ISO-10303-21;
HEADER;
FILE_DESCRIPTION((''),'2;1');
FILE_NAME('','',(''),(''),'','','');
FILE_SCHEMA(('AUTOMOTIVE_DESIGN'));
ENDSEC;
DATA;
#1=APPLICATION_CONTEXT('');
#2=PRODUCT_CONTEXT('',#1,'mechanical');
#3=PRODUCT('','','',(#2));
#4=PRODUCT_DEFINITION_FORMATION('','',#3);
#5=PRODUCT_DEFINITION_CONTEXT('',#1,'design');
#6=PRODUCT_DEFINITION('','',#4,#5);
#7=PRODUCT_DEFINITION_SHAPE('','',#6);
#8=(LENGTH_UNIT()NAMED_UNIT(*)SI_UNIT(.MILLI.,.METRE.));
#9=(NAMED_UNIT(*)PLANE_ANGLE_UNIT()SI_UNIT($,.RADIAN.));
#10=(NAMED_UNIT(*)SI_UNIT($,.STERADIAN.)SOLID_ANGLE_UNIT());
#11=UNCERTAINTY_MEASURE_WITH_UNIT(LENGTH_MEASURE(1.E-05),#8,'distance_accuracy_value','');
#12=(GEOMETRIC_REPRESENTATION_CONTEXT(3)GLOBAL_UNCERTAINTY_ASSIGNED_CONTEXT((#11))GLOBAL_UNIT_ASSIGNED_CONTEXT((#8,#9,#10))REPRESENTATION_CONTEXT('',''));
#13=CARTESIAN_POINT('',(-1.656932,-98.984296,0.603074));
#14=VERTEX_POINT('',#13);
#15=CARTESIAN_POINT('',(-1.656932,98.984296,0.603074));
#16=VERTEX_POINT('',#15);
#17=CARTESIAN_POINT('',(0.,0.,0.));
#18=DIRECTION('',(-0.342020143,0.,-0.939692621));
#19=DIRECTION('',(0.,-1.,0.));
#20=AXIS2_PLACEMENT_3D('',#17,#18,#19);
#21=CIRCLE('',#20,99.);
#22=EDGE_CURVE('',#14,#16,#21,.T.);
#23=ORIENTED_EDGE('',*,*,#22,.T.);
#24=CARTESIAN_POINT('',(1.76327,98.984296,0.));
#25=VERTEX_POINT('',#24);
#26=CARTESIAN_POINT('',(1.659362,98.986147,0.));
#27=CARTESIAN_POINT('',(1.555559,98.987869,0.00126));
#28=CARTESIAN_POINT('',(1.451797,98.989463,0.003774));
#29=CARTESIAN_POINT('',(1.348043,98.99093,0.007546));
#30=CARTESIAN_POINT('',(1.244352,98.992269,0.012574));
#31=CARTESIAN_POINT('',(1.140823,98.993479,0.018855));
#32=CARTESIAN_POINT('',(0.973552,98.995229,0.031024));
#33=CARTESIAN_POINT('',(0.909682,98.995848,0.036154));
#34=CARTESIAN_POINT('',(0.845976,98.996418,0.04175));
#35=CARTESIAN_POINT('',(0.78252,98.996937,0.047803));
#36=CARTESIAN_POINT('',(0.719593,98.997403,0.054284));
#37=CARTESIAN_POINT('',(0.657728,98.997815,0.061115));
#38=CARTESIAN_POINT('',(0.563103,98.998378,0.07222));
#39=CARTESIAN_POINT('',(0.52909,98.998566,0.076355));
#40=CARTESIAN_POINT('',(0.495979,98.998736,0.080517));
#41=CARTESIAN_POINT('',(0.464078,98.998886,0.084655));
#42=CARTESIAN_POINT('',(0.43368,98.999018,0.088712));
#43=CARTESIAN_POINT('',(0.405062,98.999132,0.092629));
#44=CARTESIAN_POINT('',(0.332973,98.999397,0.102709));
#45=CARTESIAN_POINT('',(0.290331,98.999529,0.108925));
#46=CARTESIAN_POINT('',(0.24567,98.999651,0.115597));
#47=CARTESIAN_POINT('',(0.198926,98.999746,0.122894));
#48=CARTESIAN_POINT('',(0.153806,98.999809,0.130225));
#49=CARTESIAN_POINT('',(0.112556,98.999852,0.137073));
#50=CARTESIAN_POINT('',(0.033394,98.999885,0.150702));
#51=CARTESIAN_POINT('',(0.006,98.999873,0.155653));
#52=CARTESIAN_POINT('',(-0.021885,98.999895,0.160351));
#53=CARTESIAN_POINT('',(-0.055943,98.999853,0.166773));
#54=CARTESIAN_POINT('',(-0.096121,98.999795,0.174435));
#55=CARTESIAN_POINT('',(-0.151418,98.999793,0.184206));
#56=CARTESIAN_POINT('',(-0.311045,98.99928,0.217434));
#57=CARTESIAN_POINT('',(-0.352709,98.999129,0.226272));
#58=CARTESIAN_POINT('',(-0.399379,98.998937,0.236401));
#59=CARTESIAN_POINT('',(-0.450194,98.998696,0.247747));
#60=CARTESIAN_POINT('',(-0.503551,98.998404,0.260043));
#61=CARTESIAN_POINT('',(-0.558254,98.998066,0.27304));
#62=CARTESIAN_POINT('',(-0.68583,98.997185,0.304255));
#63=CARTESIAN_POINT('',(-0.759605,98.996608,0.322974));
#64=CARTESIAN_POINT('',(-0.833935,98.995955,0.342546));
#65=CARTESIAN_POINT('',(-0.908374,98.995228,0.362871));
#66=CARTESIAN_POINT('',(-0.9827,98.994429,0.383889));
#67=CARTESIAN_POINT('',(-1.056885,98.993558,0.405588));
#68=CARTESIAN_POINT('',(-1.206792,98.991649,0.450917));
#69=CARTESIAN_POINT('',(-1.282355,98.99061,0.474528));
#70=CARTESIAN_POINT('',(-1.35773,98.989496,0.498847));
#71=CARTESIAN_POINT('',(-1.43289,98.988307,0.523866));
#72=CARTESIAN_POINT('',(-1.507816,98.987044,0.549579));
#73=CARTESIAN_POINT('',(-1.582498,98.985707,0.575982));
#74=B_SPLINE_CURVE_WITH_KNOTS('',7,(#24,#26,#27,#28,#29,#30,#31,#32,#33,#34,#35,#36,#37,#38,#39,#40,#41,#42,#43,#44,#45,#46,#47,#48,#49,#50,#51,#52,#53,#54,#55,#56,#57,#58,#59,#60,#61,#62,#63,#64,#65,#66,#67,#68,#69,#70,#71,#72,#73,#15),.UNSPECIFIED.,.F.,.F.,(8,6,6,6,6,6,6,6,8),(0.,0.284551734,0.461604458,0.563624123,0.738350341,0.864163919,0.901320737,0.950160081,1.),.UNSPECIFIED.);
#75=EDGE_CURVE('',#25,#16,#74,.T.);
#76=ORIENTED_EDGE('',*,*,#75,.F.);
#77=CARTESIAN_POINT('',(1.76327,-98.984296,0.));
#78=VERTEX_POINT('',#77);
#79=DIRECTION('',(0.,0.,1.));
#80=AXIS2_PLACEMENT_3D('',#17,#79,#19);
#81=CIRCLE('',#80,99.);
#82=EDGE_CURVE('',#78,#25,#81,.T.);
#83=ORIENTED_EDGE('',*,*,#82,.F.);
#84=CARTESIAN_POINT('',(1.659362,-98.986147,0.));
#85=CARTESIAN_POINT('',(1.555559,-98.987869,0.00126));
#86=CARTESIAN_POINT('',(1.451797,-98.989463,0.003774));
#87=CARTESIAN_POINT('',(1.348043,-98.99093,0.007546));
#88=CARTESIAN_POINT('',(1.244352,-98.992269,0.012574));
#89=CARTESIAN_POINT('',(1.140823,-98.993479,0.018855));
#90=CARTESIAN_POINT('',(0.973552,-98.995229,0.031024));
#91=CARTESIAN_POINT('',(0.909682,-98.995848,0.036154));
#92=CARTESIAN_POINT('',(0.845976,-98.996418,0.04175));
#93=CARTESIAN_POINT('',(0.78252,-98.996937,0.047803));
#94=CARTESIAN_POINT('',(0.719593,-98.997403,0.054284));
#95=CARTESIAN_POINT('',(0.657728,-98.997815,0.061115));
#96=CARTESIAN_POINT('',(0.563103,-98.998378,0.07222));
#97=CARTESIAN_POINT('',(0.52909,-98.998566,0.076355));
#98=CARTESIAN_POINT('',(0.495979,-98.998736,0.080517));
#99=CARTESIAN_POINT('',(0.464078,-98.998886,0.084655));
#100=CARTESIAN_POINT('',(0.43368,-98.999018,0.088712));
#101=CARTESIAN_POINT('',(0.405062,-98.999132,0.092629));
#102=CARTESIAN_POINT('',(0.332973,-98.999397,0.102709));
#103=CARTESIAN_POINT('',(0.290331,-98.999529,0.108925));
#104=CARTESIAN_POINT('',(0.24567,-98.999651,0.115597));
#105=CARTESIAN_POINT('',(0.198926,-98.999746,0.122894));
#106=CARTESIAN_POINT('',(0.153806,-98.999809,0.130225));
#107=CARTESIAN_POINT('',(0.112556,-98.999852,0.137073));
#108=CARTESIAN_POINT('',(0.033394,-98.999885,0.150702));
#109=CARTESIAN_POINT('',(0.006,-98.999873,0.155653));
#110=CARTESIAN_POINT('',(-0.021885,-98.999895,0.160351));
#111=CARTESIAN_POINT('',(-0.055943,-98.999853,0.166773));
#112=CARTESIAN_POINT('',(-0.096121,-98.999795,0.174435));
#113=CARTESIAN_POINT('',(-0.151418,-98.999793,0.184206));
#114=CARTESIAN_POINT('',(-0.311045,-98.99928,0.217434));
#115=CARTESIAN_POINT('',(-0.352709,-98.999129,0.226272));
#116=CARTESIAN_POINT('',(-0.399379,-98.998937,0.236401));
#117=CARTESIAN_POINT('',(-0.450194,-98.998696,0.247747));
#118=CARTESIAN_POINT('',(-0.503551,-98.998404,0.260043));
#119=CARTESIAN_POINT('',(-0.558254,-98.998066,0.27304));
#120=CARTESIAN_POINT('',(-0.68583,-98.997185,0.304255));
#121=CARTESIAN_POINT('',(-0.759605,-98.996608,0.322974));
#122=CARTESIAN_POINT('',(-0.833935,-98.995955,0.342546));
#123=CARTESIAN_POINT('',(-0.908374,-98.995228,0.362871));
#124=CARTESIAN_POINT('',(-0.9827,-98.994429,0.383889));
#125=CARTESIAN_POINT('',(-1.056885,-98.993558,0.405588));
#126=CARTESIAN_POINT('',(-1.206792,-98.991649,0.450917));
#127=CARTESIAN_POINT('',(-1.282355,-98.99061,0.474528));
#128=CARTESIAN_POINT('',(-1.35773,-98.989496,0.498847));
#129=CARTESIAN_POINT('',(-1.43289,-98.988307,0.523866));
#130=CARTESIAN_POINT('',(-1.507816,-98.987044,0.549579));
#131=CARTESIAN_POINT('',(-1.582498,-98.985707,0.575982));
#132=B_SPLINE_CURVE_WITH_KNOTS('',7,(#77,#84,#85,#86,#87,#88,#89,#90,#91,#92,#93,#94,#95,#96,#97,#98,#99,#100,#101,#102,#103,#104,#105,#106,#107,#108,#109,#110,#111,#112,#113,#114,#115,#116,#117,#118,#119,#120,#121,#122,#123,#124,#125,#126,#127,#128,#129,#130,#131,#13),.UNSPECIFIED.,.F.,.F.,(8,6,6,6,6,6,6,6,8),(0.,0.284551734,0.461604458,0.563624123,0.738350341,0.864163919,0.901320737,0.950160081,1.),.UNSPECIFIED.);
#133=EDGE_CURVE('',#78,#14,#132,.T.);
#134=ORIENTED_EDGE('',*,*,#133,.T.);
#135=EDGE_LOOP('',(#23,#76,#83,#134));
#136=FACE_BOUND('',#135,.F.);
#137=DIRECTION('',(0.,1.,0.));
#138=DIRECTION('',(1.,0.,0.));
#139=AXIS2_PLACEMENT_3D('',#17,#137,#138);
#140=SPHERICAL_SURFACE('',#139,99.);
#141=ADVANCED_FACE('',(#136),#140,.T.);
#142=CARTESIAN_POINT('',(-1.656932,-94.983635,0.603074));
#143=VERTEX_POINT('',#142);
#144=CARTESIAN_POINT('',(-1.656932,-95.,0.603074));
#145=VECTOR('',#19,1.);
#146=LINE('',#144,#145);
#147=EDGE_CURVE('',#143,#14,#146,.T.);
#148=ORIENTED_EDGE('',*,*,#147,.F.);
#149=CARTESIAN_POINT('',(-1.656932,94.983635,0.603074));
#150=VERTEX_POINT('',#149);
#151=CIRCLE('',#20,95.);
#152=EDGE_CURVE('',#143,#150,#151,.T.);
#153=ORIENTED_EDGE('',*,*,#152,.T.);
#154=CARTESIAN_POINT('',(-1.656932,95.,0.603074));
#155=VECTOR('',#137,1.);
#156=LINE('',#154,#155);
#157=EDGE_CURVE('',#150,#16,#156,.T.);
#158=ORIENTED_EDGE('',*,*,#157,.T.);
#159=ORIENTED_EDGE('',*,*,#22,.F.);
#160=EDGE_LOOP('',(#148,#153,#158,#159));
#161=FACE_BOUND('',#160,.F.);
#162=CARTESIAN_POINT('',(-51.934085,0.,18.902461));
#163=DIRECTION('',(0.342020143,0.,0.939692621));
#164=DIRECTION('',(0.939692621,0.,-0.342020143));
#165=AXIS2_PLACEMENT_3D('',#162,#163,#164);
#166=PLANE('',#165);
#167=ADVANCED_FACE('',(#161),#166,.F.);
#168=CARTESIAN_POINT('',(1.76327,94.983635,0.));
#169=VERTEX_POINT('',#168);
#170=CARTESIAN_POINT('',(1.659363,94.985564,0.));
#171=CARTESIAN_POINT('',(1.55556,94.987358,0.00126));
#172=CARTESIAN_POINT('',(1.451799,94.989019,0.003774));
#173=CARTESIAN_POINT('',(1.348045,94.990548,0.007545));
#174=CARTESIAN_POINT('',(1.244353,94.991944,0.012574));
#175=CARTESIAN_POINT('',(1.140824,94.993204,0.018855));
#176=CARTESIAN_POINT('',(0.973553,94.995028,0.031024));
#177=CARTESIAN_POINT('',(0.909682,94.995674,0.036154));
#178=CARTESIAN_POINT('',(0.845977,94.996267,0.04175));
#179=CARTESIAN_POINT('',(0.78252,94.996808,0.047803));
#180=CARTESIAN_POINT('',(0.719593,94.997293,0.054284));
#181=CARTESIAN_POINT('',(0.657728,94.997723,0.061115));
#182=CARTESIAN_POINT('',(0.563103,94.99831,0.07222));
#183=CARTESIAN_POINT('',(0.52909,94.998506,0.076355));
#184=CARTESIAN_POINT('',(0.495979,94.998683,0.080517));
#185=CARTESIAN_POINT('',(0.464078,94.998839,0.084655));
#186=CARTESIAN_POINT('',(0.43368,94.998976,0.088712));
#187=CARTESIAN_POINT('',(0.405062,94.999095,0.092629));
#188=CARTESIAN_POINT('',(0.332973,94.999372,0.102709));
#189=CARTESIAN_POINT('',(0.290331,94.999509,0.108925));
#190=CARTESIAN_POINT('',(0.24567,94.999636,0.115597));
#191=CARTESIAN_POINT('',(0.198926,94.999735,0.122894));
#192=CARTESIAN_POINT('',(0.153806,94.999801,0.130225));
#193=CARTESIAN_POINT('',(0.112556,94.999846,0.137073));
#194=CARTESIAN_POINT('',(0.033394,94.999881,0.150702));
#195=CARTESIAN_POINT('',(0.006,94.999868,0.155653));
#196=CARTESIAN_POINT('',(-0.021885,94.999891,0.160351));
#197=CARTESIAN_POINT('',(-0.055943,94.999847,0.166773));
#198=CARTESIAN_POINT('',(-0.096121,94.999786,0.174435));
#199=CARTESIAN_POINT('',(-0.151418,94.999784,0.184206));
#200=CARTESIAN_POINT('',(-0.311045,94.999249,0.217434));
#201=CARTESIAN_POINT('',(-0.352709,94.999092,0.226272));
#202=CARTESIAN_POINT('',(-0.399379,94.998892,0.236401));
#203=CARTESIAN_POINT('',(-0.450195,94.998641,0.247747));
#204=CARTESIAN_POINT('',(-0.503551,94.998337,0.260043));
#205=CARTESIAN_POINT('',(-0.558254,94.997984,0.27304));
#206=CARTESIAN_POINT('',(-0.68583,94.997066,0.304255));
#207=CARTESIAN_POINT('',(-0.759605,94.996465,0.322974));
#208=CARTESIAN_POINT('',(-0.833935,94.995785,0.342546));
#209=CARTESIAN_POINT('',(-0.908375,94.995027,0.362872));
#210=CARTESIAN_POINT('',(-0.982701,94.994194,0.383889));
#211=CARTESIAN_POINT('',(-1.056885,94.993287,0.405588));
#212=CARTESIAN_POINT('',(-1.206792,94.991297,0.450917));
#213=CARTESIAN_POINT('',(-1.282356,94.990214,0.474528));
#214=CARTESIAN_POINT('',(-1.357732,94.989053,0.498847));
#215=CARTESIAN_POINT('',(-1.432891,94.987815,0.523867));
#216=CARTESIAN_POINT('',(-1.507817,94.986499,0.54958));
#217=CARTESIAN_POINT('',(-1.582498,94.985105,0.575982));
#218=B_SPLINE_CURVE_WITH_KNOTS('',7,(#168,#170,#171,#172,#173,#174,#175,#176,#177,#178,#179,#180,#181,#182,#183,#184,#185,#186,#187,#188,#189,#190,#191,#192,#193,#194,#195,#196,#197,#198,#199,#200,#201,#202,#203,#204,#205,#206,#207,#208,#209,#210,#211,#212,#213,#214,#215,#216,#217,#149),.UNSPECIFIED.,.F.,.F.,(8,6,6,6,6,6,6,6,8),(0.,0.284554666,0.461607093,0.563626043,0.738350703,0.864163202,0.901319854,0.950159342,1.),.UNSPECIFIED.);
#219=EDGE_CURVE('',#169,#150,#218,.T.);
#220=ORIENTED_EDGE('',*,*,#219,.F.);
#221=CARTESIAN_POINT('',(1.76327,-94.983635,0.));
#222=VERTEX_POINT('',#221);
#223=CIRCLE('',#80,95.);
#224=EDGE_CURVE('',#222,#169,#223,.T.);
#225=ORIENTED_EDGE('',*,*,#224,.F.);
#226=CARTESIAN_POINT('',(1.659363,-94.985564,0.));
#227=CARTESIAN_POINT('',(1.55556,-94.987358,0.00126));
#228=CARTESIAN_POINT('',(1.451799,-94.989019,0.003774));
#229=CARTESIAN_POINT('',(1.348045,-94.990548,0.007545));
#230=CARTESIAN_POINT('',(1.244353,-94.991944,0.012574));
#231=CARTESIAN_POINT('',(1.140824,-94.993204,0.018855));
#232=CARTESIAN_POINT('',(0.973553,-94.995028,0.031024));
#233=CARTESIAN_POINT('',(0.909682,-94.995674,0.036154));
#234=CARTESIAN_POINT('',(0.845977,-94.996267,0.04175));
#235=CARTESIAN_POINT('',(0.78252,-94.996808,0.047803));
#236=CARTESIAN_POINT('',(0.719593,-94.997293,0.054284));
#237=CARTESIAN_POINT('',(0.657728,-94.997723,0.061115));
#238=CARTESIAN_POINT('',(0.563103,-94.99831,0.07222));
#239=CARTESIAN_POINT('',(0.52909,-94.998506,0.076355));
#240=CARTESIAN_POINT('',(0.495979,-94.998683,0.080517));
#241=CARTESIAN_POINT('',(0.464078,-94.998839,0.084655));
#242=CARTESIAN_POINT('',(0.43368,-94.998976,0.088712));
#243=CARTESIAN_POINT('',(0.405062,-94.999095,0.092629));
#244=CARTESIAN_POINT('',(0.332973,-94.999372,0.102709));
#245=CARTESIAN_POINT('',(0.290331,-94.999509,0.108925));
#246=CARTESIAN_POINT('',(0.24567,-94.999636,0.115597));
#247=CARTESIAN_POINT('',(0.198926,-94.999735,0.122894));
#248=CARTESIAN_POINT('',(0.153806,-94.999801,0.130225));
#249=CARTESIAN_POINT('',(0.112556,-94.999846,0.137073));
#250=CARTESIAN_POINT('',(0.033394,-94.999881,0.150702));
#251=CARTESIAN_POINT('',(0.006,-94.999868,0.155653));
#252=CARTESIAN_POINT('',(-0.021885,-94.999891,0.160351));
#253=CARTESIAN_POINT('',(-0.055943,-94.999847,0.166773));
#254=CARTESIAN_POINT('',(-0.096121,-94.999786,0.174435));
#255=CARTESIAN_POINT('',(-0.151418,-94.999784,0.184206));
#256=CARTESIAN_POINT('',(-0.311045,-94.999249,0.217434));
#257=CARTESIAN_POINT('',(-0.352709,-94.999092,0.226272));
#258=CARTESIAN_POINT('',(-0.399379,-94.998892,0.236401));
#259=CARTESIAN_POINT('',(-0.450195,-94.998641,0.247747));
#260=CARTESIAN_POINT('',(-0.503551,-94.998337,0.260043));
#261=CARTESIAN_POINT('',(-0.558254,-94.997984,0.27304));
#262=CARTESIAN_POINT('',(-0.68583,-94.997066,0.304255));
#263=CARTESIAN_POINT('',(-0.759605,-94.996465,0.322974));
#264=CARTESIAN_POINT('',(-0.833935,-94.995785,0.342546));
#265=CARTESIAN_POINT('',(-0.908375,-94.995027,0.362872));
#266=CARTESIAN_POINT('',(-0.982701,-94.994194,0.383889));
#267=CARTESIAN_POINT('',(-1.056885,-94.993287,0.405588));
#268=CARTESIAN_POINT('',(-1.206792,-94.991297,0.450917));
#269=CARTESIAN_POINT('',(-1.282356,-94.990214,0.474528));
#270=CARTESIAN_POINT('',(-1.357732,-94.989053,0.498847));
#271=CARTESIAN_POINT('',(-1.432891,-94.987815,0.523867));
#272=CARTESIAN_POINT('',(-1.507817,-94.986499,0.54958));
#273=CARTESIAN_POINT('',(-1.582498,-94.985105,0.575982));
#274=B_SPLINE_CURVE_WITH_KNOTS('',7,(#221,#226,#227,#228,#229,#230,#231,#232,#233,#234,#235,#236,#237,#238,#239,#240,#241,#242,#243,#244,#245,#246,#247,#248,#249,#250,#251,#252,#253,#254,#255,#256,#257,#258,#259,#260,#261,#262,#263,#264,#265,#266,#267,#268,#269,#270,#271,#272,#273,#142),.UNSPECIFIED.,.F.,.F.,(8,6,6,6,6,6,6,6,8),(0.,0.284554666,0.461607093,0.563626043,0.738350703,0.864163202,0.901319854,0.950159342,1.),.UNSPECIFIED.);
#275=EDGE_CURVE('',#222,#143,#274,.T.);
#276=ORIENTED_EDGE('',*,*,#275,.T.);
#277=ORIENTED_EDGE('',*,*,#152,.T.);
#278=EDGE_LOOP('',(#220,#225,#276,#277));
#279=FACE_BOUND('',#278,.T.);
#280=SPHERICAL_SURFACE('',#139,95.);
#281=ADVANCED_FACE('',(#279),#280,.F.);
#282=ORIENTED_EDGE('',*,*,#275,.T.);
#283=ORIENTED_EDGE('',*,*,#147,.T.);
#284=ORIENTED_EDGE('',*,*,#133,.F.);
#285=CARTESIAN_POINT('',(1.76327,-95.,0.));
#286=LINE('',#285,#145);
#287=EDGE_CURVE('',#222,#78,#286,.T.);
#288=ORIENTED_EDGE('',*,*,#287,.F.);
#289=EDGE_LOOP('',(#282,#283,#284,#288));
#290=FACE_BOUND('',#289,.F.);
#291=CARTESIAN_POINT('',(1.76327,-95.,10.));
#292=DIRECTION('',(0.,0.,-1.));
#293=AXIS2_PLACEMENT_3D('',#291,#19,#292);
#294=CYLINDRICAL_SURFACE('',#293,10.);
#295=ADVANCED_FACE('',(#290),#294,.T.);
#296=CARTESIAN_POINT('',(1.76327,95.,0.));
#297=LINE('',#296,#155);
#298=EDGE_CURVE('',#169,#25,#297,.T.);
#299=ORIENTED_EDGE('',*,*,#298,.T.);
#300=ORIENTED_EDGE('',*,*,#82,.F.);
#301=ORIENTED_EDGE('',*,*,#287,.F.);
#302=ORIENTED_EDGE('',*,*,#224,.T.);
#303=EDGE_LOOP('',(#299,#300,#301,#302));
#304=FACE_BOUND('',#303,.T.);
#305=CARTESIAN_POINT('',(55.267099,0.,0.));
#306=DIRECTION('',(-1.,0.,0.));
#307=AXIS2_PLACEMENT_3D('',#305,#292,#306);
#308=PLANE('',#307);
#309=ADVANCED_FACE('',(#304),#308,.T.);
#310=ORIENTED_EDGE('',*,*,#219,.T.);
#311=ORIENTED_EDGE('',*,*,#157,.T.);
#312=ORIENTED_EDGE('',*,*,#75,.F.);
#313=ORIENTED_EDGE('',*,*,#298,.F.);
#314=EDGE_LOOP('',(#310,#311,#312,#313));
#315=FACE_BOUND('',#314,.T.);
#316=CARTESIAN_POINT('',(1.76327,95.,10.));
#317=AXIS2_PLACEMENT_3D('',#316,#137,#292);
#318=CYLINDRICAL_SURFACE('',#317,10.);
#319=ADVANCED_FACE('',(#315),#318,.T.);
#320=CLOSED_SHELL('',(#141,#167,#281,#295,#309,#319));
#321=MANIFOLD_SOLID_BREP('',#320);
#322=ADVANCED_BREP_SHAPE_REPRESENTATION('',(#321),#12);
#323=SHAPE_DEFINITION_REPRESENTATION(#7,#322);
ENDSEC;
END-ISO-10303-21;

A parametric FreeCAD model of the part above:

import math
import FreeCAD as App
import Part
import Sketcher

V = App.Vector
Q = App.Units.Quantity


def edges_at(feature, points):
    """Names of the edges that pass closest to the given points."""
    edges = feature.Shape.Edges
    near = lambda p: min(range(len(edges)), key=lambda i: edges[i].distToShape(Part.Vertex(*p))[0])
    return sorted({f"Edge{near(p) + 1}" for p in points})

doc = App.newDocument("Part")
body = doc.addObject("PartDesign::Body", "Body")

sketch1 = doc.addObject("Sketcher::SketchObject", "Sketch")
body.addObject(sketch1)
sketch1.AttachmentSupport = (doc.XY_Plane, [""])
sketch1.MapMode = "FlatFace"
sketch1.addGeometry([
    Part.ArcOfCircle(Part.Circle(V(0, 0, 0), V(0, 0, 1), 95), math.radians(-90), math.radians(90)),
    Part.LineSegment(V(0, -95, 0), V(0, -99, 0)),
    Part.ArcOfCircle(Part.Circle(V(0, 0, 0), V(0, 0, 1), 99), math.radians(-90), math.radians(90)),
    Part.LineSegment(V(0, 99, 0), V(0, 95, 0)),
], False)
sketch1.addConstraint([
    Sketcher.Constraint("Coincident", 0, 1, 1, 1),
    Sketcher.Constraint("Coincident", 1, 2, 2, 1),
    Sketcher.Constraint("Coincident", 2, 2, 3, 1),
    Sketcher.Constraint("Coincident", 3, 2, 0, 2),
    Sketcher.Constraint("Vertical", 1),
    Sketcher.Constraint("Vertical", 3),
    Sketcher.Constraint("Coincident", 0, 3, -1, 1),
    Sketcher.Constraint("Coincident", 2, 3, -1, 1),
    Sketcher.Constraint("PointOnObject", 0, 1, -2),
    Sketcher.Constraint("PointOnObject", 2, 2, -2),
    Sketcher.Constraint("Radius", 0, Q("95 mm")),
    Sketcher.Constraint("Radius", 2, Q("99 mm")),
])
revolution = doc.addObject("PartDesign::Revolution", "Revolution")
body.addObject(revolution)
revolution.Profile = sketch1
revolution.ReferenceAxis = (sketch1, ["V_Axis"])
revolution.Angle = 160
revolution.Reversed = True
doc.recompute()

fillet = doc.addObject("PartDesign::Fillet", "Fillet")
body.addObject(fillet)
fillet.Base = (revolution, edges_at(revolution, [(0, 97, 0), (0, -97, 0)]))
fillet.Radius = 10

doc.recompute()
